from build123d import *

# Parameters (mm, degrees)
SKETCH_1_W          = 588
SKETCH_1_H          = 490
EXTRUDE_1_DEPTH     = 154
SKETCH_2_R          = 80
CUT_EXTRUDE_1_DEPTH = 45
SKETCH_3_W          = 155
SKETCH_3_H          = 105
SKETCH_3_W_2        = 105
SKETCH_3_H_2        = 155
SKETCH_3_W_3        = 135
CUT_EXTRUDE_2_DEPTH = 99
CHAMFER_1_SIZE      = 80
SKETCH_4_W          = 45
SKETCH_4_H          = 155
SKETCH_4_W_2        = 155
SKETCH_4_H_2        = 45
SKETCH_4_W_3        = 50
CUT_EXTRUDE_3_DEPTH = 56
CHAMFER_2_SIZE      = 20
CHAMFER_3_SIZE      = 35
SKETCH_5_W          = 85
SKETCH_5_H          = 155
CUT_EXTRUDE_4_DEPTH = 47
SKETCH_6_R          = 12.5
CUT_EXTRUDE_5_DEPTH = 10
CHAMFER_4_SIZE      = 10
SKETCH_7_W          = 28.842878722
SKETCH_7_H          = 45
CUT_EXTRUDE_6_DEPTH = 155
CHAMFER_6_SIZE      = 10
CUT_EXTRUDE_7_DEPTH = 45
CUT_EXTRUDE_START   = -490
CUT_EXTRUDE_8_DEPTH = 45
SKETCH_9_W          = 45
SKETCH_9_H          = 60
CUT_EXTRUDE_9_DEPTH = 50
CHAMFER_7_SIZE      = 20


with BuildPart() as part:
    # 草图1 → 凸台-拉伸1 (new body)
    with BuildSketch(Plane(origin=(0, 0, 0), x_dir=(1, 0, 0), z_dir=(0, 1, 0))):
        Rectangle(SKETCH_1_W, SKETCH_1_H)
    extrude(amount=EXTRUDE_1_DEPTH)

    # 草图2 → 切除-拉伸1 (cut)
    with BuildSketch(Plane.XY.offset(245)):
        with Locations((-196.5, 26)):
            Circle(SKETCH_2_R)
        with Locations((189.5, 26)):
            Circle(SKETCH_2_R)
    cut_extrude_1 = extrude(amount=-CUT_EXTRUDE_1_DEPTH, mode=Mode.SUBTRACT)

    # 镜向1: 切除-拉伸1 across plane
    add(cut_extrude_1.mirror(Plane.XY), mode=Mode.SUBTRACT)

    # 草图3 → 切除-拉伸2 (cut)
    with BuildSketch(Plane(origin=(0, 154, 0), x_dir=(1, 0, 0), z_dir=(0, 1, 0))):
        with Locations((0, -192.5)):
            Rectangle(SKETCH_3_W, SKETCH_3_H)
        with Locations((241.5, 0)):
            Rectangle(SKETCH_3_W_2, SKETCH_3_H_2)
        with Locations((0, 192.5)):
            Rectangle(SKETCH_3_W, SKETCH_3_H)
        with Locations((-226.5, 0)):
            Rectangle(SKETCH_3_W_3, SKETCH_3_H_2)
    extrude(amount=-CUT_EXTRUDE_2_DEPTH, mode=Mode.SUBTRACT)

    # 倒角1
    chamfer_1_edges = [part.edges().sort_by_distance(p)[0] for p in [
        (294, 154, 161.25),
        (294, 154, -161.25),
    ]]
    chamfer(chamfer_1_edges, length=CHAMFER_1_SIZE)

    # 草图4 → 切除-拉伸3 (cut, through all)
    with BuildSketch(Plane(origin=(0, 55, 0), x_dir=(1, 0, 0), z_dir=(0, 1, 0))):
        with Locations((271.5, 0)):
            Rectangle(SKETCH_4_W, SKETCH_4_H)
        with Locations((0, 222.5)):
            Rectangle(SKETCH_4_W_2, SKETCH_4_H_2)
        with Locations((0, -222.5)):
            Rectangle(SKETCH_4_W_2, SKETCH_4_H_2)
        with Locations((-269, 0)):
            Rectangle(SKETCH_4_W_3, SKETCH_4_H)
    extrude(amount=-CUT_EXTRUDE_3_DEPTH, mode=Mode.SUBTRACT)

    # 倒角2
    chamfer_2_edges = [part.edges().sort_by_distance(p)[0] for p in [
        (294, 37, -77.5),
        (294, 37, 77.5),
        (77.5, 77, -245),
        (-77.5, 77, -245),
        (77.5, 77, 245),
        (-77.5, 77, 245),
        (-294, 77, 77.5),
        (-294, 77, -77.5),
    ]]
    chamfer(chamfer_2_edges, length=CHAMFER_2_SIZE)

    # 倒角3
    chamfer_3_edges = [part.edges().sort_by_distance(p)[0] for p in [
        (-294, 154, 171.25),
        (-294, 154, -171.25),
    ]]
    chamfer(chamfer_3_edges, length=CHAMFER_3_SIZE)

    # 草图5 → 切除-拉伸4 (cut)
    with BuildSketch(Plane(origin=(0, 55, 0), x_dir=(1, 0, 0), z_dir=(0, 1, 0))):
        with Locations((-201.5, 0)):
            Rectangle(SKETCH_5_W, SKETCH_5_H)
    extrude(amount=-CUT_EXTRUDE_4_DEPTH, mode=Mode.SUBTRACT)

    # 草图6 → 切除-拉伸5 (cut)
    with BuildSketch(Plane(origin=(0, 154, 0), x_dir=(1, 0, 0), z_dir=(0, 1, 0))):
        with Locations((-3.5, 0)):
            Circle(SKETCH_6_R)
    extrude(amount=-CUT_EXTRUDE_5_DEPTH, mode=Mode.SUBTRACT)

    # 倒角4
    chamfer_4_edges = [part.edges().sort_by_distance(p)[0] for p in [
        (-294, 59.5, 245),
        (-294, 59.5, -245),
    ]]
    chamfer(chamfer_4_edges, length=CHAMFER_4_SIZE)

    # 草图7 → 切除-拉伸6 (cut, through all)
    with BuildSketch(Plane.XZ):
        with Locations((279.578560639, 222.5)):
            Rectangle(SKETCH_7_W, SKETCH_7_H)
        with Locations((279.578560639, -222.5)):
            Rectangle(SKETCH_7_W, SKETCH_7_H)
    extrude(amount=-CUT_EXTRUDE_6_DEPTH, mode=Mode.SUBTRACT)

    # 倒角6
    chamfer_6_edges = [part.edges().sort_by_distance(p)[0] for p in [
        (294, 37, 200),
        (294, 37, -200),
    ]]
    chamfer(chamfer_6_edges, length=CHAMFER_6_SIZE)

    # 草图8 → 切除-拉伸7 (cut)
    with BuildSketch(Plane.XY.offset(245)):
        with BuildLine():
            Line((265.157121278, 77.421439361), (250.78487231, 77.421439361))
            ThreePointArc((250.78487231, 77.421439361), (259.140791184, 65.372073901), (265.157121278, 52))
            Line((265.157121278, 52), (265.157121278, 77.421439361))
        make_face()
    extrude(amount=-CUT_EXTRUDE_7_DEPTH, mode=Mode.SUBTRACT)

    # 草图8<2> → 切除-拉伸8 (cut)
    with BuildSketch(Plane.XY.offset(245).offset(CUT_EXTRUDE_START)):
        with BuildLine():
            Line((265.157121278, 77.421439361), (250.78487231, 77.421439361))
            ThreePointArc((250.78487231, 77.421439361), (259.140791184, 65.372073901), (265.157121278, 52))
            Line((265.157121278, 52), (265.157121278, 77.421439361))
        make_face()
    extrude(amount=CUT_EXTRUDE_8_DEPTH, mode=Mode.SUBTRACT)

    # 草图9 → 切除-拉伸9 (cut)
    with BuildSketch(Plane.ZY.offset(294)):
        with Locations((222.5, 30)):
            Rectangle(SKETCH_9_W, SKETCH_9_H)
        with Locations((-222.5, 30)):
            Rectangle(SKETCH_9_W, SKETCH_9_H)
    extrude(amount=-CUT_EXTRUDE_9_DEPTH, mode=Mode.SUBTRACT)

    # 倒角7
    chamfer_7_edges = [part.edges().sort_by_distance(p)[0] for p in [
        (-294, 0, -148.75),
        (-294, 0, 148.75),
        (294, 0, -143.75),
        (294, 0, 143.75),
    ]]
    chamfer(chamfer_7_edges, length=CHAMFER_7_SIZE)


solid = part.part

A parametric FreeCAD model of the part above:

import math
import FreeCAD as App
import Part
import Sketcher
from FreeCAD import Vector
Q = App.Units.Quantity


def edges_at(feature, points):
    """Names of the edges that pass closest to the given points."""
    edges = feature.Shape.Edges
    near = lambda p: min(range(len(edges)), key=lambda i: edges[i].distToShape(Part.Vertex(*p))[0])
    return sorted({f"Edge{near(p) + 1}" for p in points})

doc = App.newDocument("Part")
body = doc.addObject("PartDesign::Body", "Body")

# Sketch on XZ plane
sketch1 = doc.addObject("Sketcher::SketchObject", "Sketch")
body.addObject(sketch1)
sketch1.AttachmentSupport = (doc.XZ_Plane, [""])
sketch1.MapMode = "FlatFace"
sketch1.addGeometry([
    Part.LineSegment(Vector(-294, -245, 0), Vector(-294, 245, 0)),
    Part.LineSegment(Vector(-294, 245, 0), Vector(294, 245, 0)),
    Part.LineSegment(Vector(294, 245, 0), Vector(294, -245, 0)),
    Part.LineSegment(Vector(294, -245, 0), Vector(-294, -245, 0)),
], False)
sketch1.addConstraint([
    Sketcher.Constraint("Coincident", 0, 2, 1, 1),
    Sketcher.Constraint("Coincident", 1, 2, 2, 1),
    Sketcher.Constraint("Coincident", 2, 2, 3, 1),
    Sketcher.Constraint("Coincident", 3, 2, 0, 1),
    Sketcher.Constraint("Vertical", 0),
    Sketcher.Constraint("Horizontal", 1),
    Sketcher.Constraint("Vertical", 2),
    Sketcher.Constraint("Horizontal", 3),
    Sketcher.Constraint("Symmetric", 0, 2, 2, 2, -1, 1),
    Sketcher.Constraint("DistanceX", 1, 1, 1, 2, Q("588 mm")),
    Sketcher.Constraint("DistanceY", 0, 1, 0, 2, Q("490 mm")),
])
pad1 = doc.addObject("PartDesign::Pad", "Pad")
body.addObject(pad1)
pad1.Profile = sketch1
pad1.Length = 154
pad1.Reversed = True

# Sketch on XY plane
sketch2 = doc.addObject("Sketcher::SketchObject", "Sketch001")
body.addObject(sketch2)
sketch2.AttachmentSupport = (doc.XY_Plane, [""])
sketch2.MapMode = "FlatFace"
sketch2.AttachmentOffset = App.Placement(Vector(0, 0, 245), App.Rotation())
sketch2.addGeometry([
    Part.Circle(Vector(-196, 26, 0), Vector(0, 0, 1), 80),
    Part.Circle(Vector(190, 26, 0), Vector(0, 0, 1), 80),
], False)
sketch2.addConstraint([
    Sketcher.Constraint("Equal", 0, 1),
    Sketcher.Constraint("Horizontal", 0, 3, 1, 3),
    Sketcher.Constraint("Diameter", 0, Q("160 mm")),
    Sketcher.Constraint("DistanceY", -1, 1, 0, 3, Q("26 mm")),
    Sketcher.Constraint("DistanceX", 0, 3, 1, 3, Q("386 mm")),
    Sketcher.Constraint("DistanceX", 0, 3, -1, 1, Q("196.5 mm")),
])
pocket1 = doc.addObject("PartDesign::Pocket", "Pocket")
body.addObject(pocket1)
pocket1.Profile = sketch2
pocket1.Length = 45
doc.recompute()

mirrored = doc.addObject("PartDesign::Mirrored", "Mirrored")
body.addObject(mirrored)
mirrored.Originals = [pocket1]
mirrored.MirrorPlane = (doc.XY_Plane, [""])
body.Tip = mirrored

# Sketch on XZ plane
sketch3 = doc.addObject("Sketcher::SketchObject", "Sketch002")
body.addObject(sketch3)
sketch3.AttachmentSupport = (doc.XZ_Plane, [""])
sketch3.MapMode = "FlatFace"
sketch3.AttachmentOffset = App.Placement(Vector(0, 0, -154), App.Rotation())
sketch3.addGeometry([
    Part.LineSegment(Vector(-78, 140, 0), Vector(-78, 245, 0)),  # 0
    Part.LineSegment(Vector(-78, 245, 0), Vector(78, 245, 0)),  # 1
    Part.LineSegment(Vector(78, 245, 0), Vector(78, 140, 0)),  # 2
    Part.LineSegment(Vector(78, 140, 0), Vector(-78, 140, 0)),  # 3
    Part.LineSegment(Vector(189, -78, 0), Vector(189, 78, 0)),  # 4
    Part.LineSegment(Vector(189, 78, 0), Vector(294, 78, 0)),  # 5
    Part.LineSegment(Vector(294, 78, 0), Vector(294, -78, 0)),  # 6
    Part.LineSegment(Vector(294, -78, 0), Vector(189, -78, 0)),  # 7
    Part.LineSegment(Vector(-78, -245, 0), Vector(-78, -140, 0)),  # 8
    Part.LineSegment(Vector(-78, -140, 0), Vector(78, -140, 0)),  # 9
    Part.LineSegment(Vector(78, -140, 0), Vector(78, -245, 0)),  # 10
    Part.LineSegment(Vector(78, -245, 0), Vector(-78, -245, 0)),  # 11
    Part.LineSegment(Vector(-294, -78, 0), Vector(-294, 78, 0)),  # 12
    Part.LineSegment(Vector(-294, 78, 0), Vector(-159, 78, 0)),  # 13
    Part.LineSegment(Vector(-159, 78, 0), Vector(-159, -78, 0)),  # 14
    Part.LineSegment(Vector(-159, -78, 0), Vector(-294, -78, 0)),  # 15
], False)
sketch3.addConstraint([
    Sketcher.Constraint("Coincident", 0, 2, 1, 1),
    Sketcher.Constraint("Coincident", 1, 2, 2, 1),
    Sketcher.Constraint("Coincident", 2, 2, 3, 1),
    Sketcher.Constraint("Coincident", 3, 2, 0, 1),
    Sketcher.Constraint("Coincident", 4, 2, 5, 1),
    Sketcher.Constraint("Coincident", 5, 2, 6, 1),
    Sketcher.Constraint("Coincident", 6, 2, 7, 1),
    Sketcher.Constraint("Coincident", 7, 2, 4, 1),
    Sketcher.Constraint("Coincident", 8, 2, 9, 1),
    Sketcher.Constraint("Coincident", 9, 2, 10, 1),
    Sketcher.Constraint("Coincident", 10, 2, 11, 1),
    Sketcher.Constraint("Coincident", 11, 2, 8, 1),
    Sketcher.Constraint("Coincident", 12, 2, 13, 1),
    Sketcher.Constraint("Coincident", 13, 2, 14, 1),
    Sketcher.Constraint("Coincident", 14, 2, 15, 1),
    Sketcher.Constraint("Coincident", 15, 2, 12, 1),
    Sketcher.Constraint("Vertical", 0),
    Sketcher.Constraint("Horizontal", 1),
    Sketcher.Constraint("Vertical", 2),
    Sketcher.Constraint("Horizontal", 3),
    Sketcher.Constraint("Vertical", 4),
    Sketcher.Constraint("Horizontal", 5),
    Sketcher.Constraint("Vertical", 6),
    Sketcher.Constraint("Horizontal", 7),
    Sketcher.Constraint("Vertical", 8),
    Sketcher.Constraint("Horizontal", 9),
    Sketcher.Constraint("Vertical", 10),
    Sketcher.Constraint("Horizontal", 11),
    Sketcher.Constraint("Vertical", 12),
    Sketcher.Constraint("Horizontal", 13),
    Sketcher.Constraint("Vertical", 14),
    Sketcher.Constraint("Horizontal", 15),
    Sketcher.Constraint("Symmetric", 2, 2, 8, 2, -1, 1),
    Sketcher.Constraint("Symmetric", 0, 2, 10, 2, -1, 1),
    Sketcher.Constraint("Symmetric", 6, 2, 12, 2, -1, 1),
    Sketcher.Constraint("Horizontal", 5, 2, 12, 2),
    Sketcher.Constraint("Horizontal", 7, 2, 14, 2),
    Sketcher.Constraint("Vertical", 3, 2, 8, 2),
    Sketcher.Constraint("Equal", 7, 0),
    Sketcher.Constraint("Equal", 11, 4),
    Sketcher.Constraint("DistanceX", 1, 1, 1, 2, Q("155 mm")),
    Sketcher.Constraint("DistanceX", 5, 1, 5, 2, Q("105 mm")),
    Sketcher.Constraint("DistanceX", 13, 1, 13, 2, Q("135 mm")),
    Sketcher.Constraint("DistanceY", -1, 1, 0, 2, Q("245 mm")),
    Sketcher.Constraint("DistanceX", -1, 1, 4, 2, Q("189 mm")),
])
pocket2 = doc.addObject("PartDesign::Pocket", "Pocket001")
body.addObject(pocket2)
pocket2.Profile = sketch3
pocket2.Length = 99
pocket2.Reversed = True
doc.recompute()

chamfer = doc.addObject("PartDesign::Chamfer", "Chamfer")
body.addObject(chamfer)
chamfer.Base = (pocket2, edges_at(pocket2, [(294, 154, 161.25), (294, 154, -161.25)]))
chamfer.Size = 80

# Sketch on XZ plane
sketch4 = doc.addObject("Sketcher::SketchObject", "Sketch003")
body.addObject(sketch4)
sketch4.AttachmentSupport = (doc.XZ_Plane, [""])
sketch4.MapMode = "FlatFace"
sketch4.AttachmentOffset = App.Placement(Vector(0, 0, -55), App.Rotation())
sketch4.addGeometry([
    Part.LineSegment(Vector(249, -78, 0), Vector(249, 78, 0)),  # 0
    Part.LineSegment(Vector(249, 78, 0), Vector(294, 78, 0)),  # 1
    Part.LineSegment(Vector(294, 78, 0), Vector(294, -78, 0)),  # 2
    Part.LineSegment(Vector(294, -78, 0), Vector(249, -78, 0)),  # 3
    Part.LineSegment(Vector(-78, -245, 0), Vector(-78, -200, 0)),  # 4
    Part.LineSegment(Vector(-78, -200, 0), Vector(78, -200, 0)),  # 5
    Part.LineSegment(Vector(78, -200, 0), Vector(78, -245, 0)),  # 6
    Part.LineSegment(Vector(78, -245, 0), Vector(-78, -245, 0)),  # 7
    Part.LineSegment(Vector(-78, 200, 0), Vector(-78, 245, 0)),  # 8
    Part.LineSegment(Vector(-78, 245, 0), Vector(78, 245, 0)),  # 9
    Part.LineSegment(Vector(78, 245, 0), Vector(78, 200, 0)),  # 10
    Part.LineSegment(Vector(78, 200, 0), Vector(-78, 200, 0)),  # 11
    Part.LineSegment(Vector(-294, -78, 0), Vector(-294, 78, 0)),  # 12
    Part.LineSegment(Vector(-294, 78, 0), Vector(-244, 78, 0)),  # 13
    Part.LineSegment(Vector(-244, 78, 0), Vector(-244, -78, 0)),  # 14
    Part.LineSegment(Vector(-244, -78, 0), Vector(-294, -78, 0)),  # 15
], False)
sketch4.addConstraint([
    Sketcher.Constraint("Coincident", 0, 2, 1, 1),
    Sketcher.Constraint("Coincident", 1, 2, 2, 1),
    Sketcher.Constraint("Coincident", 2, 2, 3, 1),
    Sketcher.Constraint("Coincident", 3, 2, 0, 1),
    Sketcher.Constraint("Coincident", 4, 2, 5, 1),
    Sketcher.Constraint("Coincident", 5, 2, 6, 1),
    Sketcher.Constraint("Coincident", 6, 2, 7, 1),
    Sketcher.Constraint("Coincident", 7, 2, 4, 1),
    Sketcher.Constraint("Coincident", 8, 2, 9, 1),
    Sketcher.Constraint("Coincident", 9, 2, 10, 1),
    Sketcher.Constraint("Coincident", 10, 2, 11, 1),
    Sketcher.Constraint("Coincident", 11, 2, 8, 1),
    Sketcher.Constraint("Coincident", 12, 2, 13, 1),
    Sketcher.Constraint("Coincident", 13, 2, 14, 1),
    Sketcher.Constraint("Coincident", 14, 2, 15, 1),
    Sketcher.Constraint("Coincident", 15, 2, 12, 1),
    Sketcher.Constraint("Vertical", 0),
    Sketcher.Constraint("Horizontal", 1),
    Sketcher.Constraint("Vertical", 2),
    Sketcher.Constraint("Horizontal", 3),
    Sketcher.Constraint("Vertical", 4),
    Sketcher.Constraint("Horizontal", 5),
    Sketcher.Constraint("Vertical", 6),
    Sketcher.Constraint("Horizontal", 7),
    Sketcher.Constraint("Vertical", 8),
    Sketcher.Constraint("Horizontal", 9),
    Sketcher.Constraint("Vertical", 10),
    Sketcher.Constraint("Horizontal", 11),
    Sketcher.Constraint("Vertical", 12),
    Sketcher.Constraint("Horizontal", 13),
    Sketcher.Constraint("Vertical", 14),
    Sketcher.Constraint("Horizontal", 15),
    Sketcher.Constraint("Symmetric", 6, 2, 8, 2, -1, 1),
    Sketcher.Constraint("Symmetric", 4, 2, 10, 2, -1, 1),
    Sketcher.Constraint("Symmetric", 2, 2, 12, 2, -1, 1),
    Sketcher.Constraint("Horizontal", 1, 2, 12, 2),
    Sketcher.Constraint("Horizontal", 3, 2, 14, 2),
    Sketcher.Constraint("Vertical", 7, 2, 8, 2),
    Sketcher.Constraint("Equal", 11, 0),
    Sketcher.Constraint("Equal", 3, 4),
    Sketcher.Constraint("DistanceX", 1, 1, 1, 2, Q("45 mm")),
    Sketcher.Constraint("DistanceX", 5, 1, 5, 2, Q("155 mm")),
    Sketcher.Constraint("DistanceX", 13, 1, 13, 2, Q("50 mm")),
    Sketcher.Constraint("DistanceX", -1, 1, 0, 2, Q("249 mm")),
    Sketcher.Constraint("DistanceY", 4, 2, -1, 1, Q("200 mm")),
])
pocket3 = doc.addObject("PartDesign::Pocket", "Pocket002")
body.addObject(pocket3)
pocket3.Profile = sketch4
pocket3.Type = "ThroughAll"
pocket3.Reversed = True
doc.recompute()

chamfer2 = doc.addObject("PartDesign::Chamfer", "Chamfer001")
body.addObject(chamfer2)
chamfer2.Base = (pocket3, edges_at(pocket3, [
    (294, 37, -77.5),
    (294, 37, 77.5),
    (77.5, 77, -245),
    (-77.5, 77, -245),
    (77.5, 77, 245),
    (-77.5, 77, 245),
    (-294, 77, 77.5),
    (-294, 77, -77.5),
]))
chamfer2.Size = 20
doc.recompute()

chamfer3 = doc.addObject("PartDesign::Chamfer", "Chamfer002")
body.addObject(chamfer3)
chamfer3.Base = (chamfer2, edges_at(chamfer2, [(-294, 154, 171.25), (-294, 154, -171.25)]))
chamfer3.Size = 35

# Sketch on XZ plane
sketch5 = doc.addObject("Sketcher::SketchObject", "Sketch004")
body.addObject(sketch5)
sketch5.AttachmentSupport = (doc.XZ_Plane, [""])
sketch5.MapMode = "FlatFace"
sketch5.AttachmentOffset = App.Placement(Vector(0, 0, -55), App.Rotation())
sketch5.addGeometry([
    Part.LineSegment(Vector(-244, -78, 0), Vector(-244, 78, 0)),
    Part.LineSegment(Vector(-244, 78, 0), Vector(-159, 78, 0)),
    Part.LineSegment(Vector(-159, 78, 0), Vector(-159, -78, 0)),
    Part.LineSegment(Vector(-159, -78, 0), Vector(-244, -78, 0)),
], False)
sketch5.addConstraint([
    Sketcher.Constraint("Coincident", 0, 2, 1, 1),
    Sketcher.Constraint("Coincident", 1, 2, 2, 1),
    Sketcher.Constraint("Coincident", 2, 2, 3, 1),
    Sketcher.Constraint("Coincident", 3, 2, 0, 1),
    Sketcher.Constraint("Vertical", 0),
    Sketcher.Constraint("Horizontal", 1),
    Sketcher.Constraint("Vertical", 2),
    Sketcher.Constraint("Horizontal", 3),
    Sketcher.Constraint("DistanceX", 1, 1, 1, 2, Q("85 mm")),
    Sketcher.Constraint("DistanceY", 0, 1, 0, 2, Q("155 mm")),
    Sketcher.Constraint("DistanceX", 0, 2, -1, 1, Q("244 mm")),
    Sketcher.Constraint("DistanceY", -1, 1, 0, 2, Q("77.5 mm")),
])
pocket4 = doc.addObject("PartDesign::Pocket", "Pocket003")
body.addObject(pocket4)
pocket4.Profile = sketch5
pocket4.Length = 47
pocket4.Reversed = True

# Sketch on XZ plane
sketch6 = doc.addObject("Sketcher::SketchObject", "Sketch005")
body.addObject(sketch6)
sketch6.AttachmentSupport = (doc.XZ_Plane, [""])
sketch6.MapMode = "FlatFace"
sketch6.AttachmentOffset = App.Placement(Vector(0, 0, -154), App.Rotation())
sketch6.addGeometry(Part.Circle(Vector(-4, 0, 0), Vector(0, 0, 1), 12), False)
sketch6.addConstraint([
    Sketcher.Constraint("PointOnObject", 0, 3, -1),
    Sketcher.Constraint("Diameter", 0, Q("25 mm")),
    Sketcher.Constraint("DistanceX", 0, 3, -1, 1, Q("3.5 mm")),
])
pocket5 = doc.addObject("PartDesign::Pocket", "Pocket004")
body.addObject(pocket5)
pocket5.Profile = sketch6
pocket5.Length = 10
pocket5.Reversed = True
doc.recompute()

chamfer4 = doc.addObject("PartDesign::Chamfer", "Chamfer003")
body.addObject(chamfer4)
chamfer4.Base = (pocket5, edges_at(pocket5, [(-294, 59.5, 245), (-294, 59.5, -245)]))
chamfer4.Size = 10

# Sketch on XZ plane
sketch7 = doc.addObject("Sketcher::SketchObject", "Sketch006")
body.addObject(sketch7)
sketch7.AttachmentSupport = (doc.XZ_Plane, [""])
sketch7.MapMode = "FlatFace"
sketch7.addGeometry([
    Part.LineSegment(Vector(265, 245, 0), Vector(265, 200, 0)),  # 0
    Part.LineSegment(Vector(265, 200, 0), Vector(294, 200, 0)),  # 1
    Part.LineSegment(Vector(294, 200, 0), Vector(294, 245, 0)),  # 2
    Part.LineSegment(Vector(294, 245, 0), Vector(265, 245, 0)),  # 3
    Part.LineSegment(Vector(265, -200, 0), Vector(265, -245, 0)),  # 4
    Part.LineSegment(Vector(265, -245, 0), Vector(294, -245, 0)),  # 5
    Part.LineSegment(Vector(294, -245, 0), Vector(294, -200, 0)),  # 6
    Part.LineSegment(Vector(294, -200, 0), Vector(265, -200, 0)),  # 7
], False)
sketch7.addConstraint([
    Sketcher.Constraint("Coincident", 0, 2, 1, 1),
    Sketcher.Constraint("Coincident", 1, 2, 2, 1),
    Sketcher.Constraint("Coincident", 2, 2, 3, 1),
    Sketcher.Constraint("Coincident", 3, 2, 0, 1),
    Sketcher.Constraint("Coincident", 4, 2, 5, 1),
    Sketcher.Constraint("Coincident", 5, 2, 6, 1),
    Sketcher.Constraint("Coincident", 6, 2, 7, 1),
    Sketcher.Constraint("Coincident", 7, 2, 4, 1),
    Sketcher.Constraint("Vertical", 0),
    Sketcher.Constraint("Horizontal", 1),
    Sketcher.Constraint("Vertical", 2),
    Sketcher.Constraint("Horizontal", 3),
    Sketcher.Constraint("Vertical", 4),
    Sketcher.Constraint("Horizontal", 5),
    Sketcher.Constraint("Vertical", 6),
    Sketcher.Constraint("Horizontal", 7),
    Sketcher.Constraint("Symmetric", 3, 2, 4, 2, -1),
    Sketcher.Constraint("Symmetric", 1, 2, 6, 2, -1),
    Sketcher.Constraint("DistanceY", 0, 2, 0, 1, Q("45 mm")),
    Sketcher.Constraint("DistanceY", -1, 1, 0, 2, Q("200 mm")),
    Sketcher.Constraint("DistanceX", -1, 1, 1, 2, Q("294 mm")),
    Sketcher.Constraint("DistanceX", 1, 1, 1, 2, Q("28.842879 mm")),
])
pocket6 = doc.addObject("PartDesign::Pocket", "Pocket005")
body.addObject(pocket6)
pocket6.Profile = sketch7
pocket6.Type = "ThroughAll"
doc.recompute()

chamfer5 = doc.addObject("PartDesign::Chamfer", "Chamfer004")
body.addObject(chamfer5)
chamfer5.Base = (pocket6, edges_at(pocket6, [(294, 37, 200), (294, 37, -200)]))
chamfer5.Size = 10

# Sketch on XY plane
sketch8 = doc.addObject("Sketcher::SketchObject", "Sketch007")
body.addObject(sketch8)
sketch8.AttachmentSupport = (doc.XY_Plane, [""])
sketch8.MapMode = "FlatFace"
sketch8.AttachmentOffset = App.Placement(Vector(0, 0, 245), App.Rotation())
sketch8.addGeometry([
    Part.LineSegment(Vector(265, 77, 0), Vector(251, 77, 0)),
    Part.ArcOfCircle(Part.Circle(Vector(189, 26, 0), Vector(0, 0, 1), 80), math.radians(19), math.radians(40)),
    Part.LineSegment(Vector(265, 52, 0), Vector(265, 77, 0)),
], False)
sketch8.addConstraint([
    Sketcher.Constraint("Coincident", 0, 2, 1, 2),
    Sketcher.Constraint("Coincident", 1, 1, 2, 1),
    Sketcher.Constraint("Coincident", 2, 2, 0, 1),
    Sketcher.Constraint("Horizontal", 0),
    Sketcher.Constraint("Vertical", 2),
    Sketcher.Constraint("Radius", 1, Q("80 mm")),
    Sketcher.Constraint("DistanceY", -1, 1, 1, 3, Q("26 mm")),
    Sketcher.Constraint("DistanceY", -1, 1, 1, 1, Q("52 mm")),
    Sketcher.Constraint("DistanceX", -1, 1, 1, 3, Q("189.5 mm")),
    Sketcher.Constraint("DistanceX", 0, 2, 0, 1, Q("14.372249 mm")),
])
pocket7 = doc.addObject("PartDesign::Pocket", "Pocket006")
body.addObject(pocket7)
pocket7.Profile = sketch8
pocket7.Length = 45

# Sketch on XY plane
sketch9 = doc.addObject("Sketcher::SketchObject", "Sketch008")
body.addObject(sketch9)
sketch9.AttachmentSupport = (doc.XY_Plane, [""])
sketch9.MapMode = "FlatFace"
sketch9.AttachmentOffset = App.Placement(Vector(0, 0, -245), App.Rotation())
sketch9.addGeometry([
    Part.LineSegment(Vector(265, 77, 0), Vector(251, 77, 0)),
    Part.ArcOfCircle(Part.Circle(Vector(189, 26, 0), Vector(0, 0, 1), 80), math.radians(19), math.radians(40)),
    Part.LineSegment(Vector(265, 52, 0), Vector(265, 77, 0)),
], False)
sketch9.addConstraint([
    Sketcher.Constraint("Coincident", 0, 2, 1, 2),
    Sketcher.Constraint("Coincident", 1, 1, 2, 1),
    Sketcher.Constraint("Coincident", 2, 2, 0, 1),
    Sketcher.Constraint("Horizontal", 0),
    Sketcher.Constraint("Vertical", 2),
    Sketcher.Constraint("Radius", 1, Q("80 mm")),
    Sketcher.Constraint("DistanceY", -1, 1, 1, 3, Q("26 mm")),
    Sketcher.Constraint("DistanceY", -1, 1, 1, 1, Q("52 mm")),
    Sketcher.Constraint("DistanceX", -1, 1, 1, 3, Q("189.5 mm")),
    Sketcher.Constraint("DistanceX", 0, 2, 0, 1, Q("14.372249 mm")),
])
pocket8 = doc.addObject("PartDesign::Pocket", "Pocket007")
body.addObject(pocket8)
pocket8.Profile = sketch9
pocket8.Length = 45
pocket8.Reversed = True

# Sketch on YZ plane
sketch10 = doc.addObject("Sketcher::SketchObject", "Sketch009")
body.addObject(sketch10)
sketch10.AttachmentSupport = (doc.YZ_Plane, [""])
sketch10.MapMode = "FlatFace"
sketch10.AttachmentOffset = App.Placement(Vector(0, 0, -294), App.Rotation())
sketch10.addGeometry([
    Part.LineSegment(Vector(60, 200, 0), Vector(0, 200, 0)),  # 0
    Part.LineSegment(Vector(0, 200, 0), Vector(0, 245, 0)),  # 1
    Part.LineSegment(Vector(0, 245, 0), Vector(60, 245, 0)),  # 2
    Part.LineSegment(Vector(60, 245, 0), Vector(60, 200, 0)),  # 3
    Part.LineSegment(Vector(60, -245, 0), Vector(0, -245, 0)),  # 4
    Part.LineSegment(Vector(0, -245, 0), Vector(0, -200, 0)),  # 5
    Part.LineSegment(Vector(0, -200, 0), Vector(60, -200, 0)),  # 6
    Part.LineSegment(Vector(60, -200, 0), Vector(60, -245, 0)),  # 7
], False)
sketch10.addConstraint([
    Sketcher.Constraint("Coincident", 0, 2, 1, 1),
    Sketcher.Constraint("Coincident", 1, 2, 2, 1),
    Sketcher.Constraint("Coincident", 2, 2, 3, 1),
    Sketcher.Constraint("Coincident", 3, 2, 0, 1),
    Sketcher.Constraint("Coincident", 4, 2, 5, 1),
    Sketcher.Constraint("Coincident", 5, 2, 6, 1),
    Sketcher.Constraint("Coincident", 6, 2, 7, 1),
    Sketcher.Constraint("Coincident", 7, 2, 4, 1),
    Sketcher.Constraint("Horizontal", 0),
    Sketcher.Constraint("Vertical", 1),
    Sketcher.Constraint("Horizontal", 2),
    Sketcher.Constraint("Vertical", 3),
    Sketcher.Constraint("Horizontal", 4),
    Sketcher.Constraint("Vertical", 5),
    Sketcher.Constraint("Horizontal", 6),
    Sketcher.Constraint("Vertical", 7),
    Sketcher.Constraint("Symmetric", 1, 2, 4, 2, -1, 1),
    Sketcher.Constraint("Symmetric", 0, 2, 5, 2, -1),
    Sketcher.Constraint("Vertical", 3, 2, 6, 2),
    Sketcher.Constraint("DistanceX", 0, 2, 0, 1, Q("60 mm")),
    Sketcher.Constraint("DistanceY", 1, 1, 1, 2, Q("45 mm")),
    Sketcher.Constraint("DistanceY", -1, 1, 0, 2, Q("200 mm")),
])
pocket9 = doc.addObject("PartDesign::Pocket", "Pocket008")
body.addObject(pocket9)
pocket9.Profile = sketch10
pocket9.Length = 50
pocket9.Reversed = True
doc.recompute()

chamfer6 = doc.addObject("PartDesign::Chamfer", "Chamfer005")
body.addObject(chamfer6)
chamfer6.Base = (pocket9, edges_at(pocket9, [
    (-294, 0, -148.75),
    (-294, 0, 148.75),
    (294, 0, -143.75),
    (294, 0, 143.75),
]))
chamfer6.Size = 20

doc.recompute()
